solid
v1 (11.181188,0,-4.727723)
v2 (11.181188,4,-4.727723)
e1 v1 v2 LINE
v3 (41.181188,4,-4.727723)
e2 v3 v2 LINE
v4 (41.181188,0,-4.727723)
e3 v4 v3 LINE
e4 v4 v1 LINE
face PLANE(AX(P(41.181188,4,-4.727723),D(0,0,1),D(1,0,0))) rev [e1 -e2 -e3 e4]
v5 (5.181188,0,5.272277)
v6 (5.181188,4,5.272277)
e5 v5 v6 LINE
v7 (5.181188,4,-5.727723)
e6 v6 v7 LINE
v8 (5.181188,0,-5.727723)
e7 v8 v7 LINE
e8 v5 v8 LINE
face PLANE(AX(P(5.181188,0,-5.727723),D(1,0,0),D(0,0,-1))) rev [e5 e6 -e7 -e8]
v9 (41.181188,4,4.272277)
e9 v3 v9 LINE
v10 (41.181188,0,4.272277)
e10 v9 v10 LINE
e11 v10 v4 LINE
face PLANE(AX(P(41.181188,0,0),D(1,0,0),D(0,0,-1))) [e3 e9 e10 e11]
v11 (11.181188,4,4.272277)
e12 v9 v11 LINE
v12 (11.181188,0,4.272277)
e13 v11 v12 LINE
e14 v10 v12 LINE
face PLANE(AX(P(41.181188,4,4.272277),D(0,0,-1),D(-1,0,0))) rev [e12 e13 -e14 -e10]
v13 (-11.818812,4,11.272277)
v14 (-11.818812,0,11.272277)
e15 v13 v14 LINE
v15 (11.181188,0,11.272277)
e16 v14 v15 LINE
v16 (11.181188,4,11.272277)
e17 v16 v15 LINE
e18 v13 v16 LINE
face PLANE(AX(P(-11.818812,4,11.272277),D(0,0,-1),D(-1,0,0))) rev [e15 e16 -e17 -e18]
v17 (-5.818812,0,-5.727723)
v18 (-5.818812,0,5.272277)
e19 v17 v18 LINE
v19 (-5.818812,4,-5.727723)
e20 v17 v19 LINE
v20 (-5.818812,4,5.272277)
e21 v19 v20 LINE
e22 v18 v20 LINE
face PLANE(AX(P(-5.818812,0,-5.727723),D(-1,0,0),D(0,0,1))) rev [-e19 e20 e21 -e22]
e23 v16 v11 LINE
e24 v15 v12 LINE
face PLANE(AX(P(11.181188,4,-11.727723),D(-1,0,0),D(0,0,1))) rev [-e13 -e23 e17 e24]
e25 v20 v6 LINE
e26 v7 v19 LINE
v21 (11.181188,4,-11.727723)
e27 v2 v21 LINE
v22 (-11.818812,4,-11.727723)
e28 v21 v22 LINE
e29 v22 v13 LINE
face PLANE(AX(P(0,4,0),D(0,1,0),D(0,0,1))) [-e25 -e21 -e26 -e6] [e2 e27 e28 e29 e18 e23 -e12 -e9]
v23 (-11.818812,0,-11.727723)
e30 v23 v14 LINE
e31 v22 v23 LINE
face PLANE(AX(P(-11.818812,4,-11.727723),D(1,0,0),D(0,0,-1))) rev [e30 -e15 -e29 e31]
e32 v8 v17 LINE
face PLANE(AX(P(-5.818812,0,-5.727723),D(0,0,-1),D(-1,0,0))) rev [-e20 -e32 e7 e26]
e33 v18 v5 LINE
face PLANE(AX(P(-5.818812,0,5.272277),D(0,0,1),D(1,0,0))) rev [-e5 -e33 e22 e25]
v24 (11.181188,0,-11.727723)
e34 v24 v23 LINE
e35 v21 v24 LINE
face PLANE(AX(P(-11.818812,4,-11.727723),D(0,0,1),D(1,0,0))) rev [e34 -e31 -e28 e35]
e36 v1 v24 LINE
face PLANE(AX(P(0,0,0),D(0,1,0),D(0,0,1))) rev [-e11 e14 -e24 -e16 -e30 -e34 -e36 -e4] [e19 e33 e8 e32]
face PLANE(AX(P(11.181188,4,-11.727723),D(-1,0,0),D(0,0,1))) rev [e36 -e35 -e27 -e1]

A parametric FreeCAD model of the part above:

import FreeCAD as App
import Part
import Sketcher

doc = App.newDocument("Part")
body = doc.addObject("PartDesign::Body", "Body")

# Sketch on XZ plane
sketch1 = body.newObject("Sketcher::SketchObject", "Sketch")
sketch1.AttachmentSupport = (doc.getObject("XZ_Plane"), [""])
sketch1.MapMode = "FlatFace"
sketch1.addGeometry(Part.LineSegment(App.Vector(-12, -12, 0), App.Vector(-12, 11, 0)), False)
sketch1.addGeometry(Part.LineSegment(App.Vector(-12, 11, 0), App.Vector(11, 11, 0)), False)
sketch1.addGeometry(Part.LineSegment(App.Vector(11, 11, 0), App.Vector(11, -12, 0)), False)
sketch1.addGeometry(Part.LineSegment(App.Vector(11, -12, 0), App.Vector(-12, -12, 0)), False)
sketch1.addConstraint(Sketcher.Constraint("Coincident", 0, 2, 1, 1))
sketch1.addConstraint(Sketcher.Constraint("Coincident", 1, 2, 2, 1))
sketch1.addConstraint(Sketcher.Constraint("Coincident", 2, 2, 3, 1))
sketch1.addConstraint(Sketcher.Constraint("Coincident", 3, 2, 0, 1))
sketch1.addConstraint(Sketcher.Constraint("Vertical", 0))
sketch1.addConstraint(Sketcher.Constraint("Horizontal", 1))
sketch1.addConstraint(Sketcher.Constraint("Vertical", 2))
sketch1.addConstraint(Sketcher.Constraint("Horizontal", 3))
sketch1.addConstraint(Sketcher.Constraint("Equal", 3, 0))
sketch1.addConstraint(Sketcher.Constraint("DistanceX", 1, 1, 1, 2, 23.0))
sketch1.addConstraint(Sketcher.Constraint("DistanceX", 0, 2, -1, 1, 11.818812))
sketch1.addConstraint(Sketcher.Constraint("DistanceY", -1, 1, 0, 2, 11.272277))
pad1 = body.newObject("PartDesign::Pad", "Pad")
pad1.Profile = sketch1
pad1.Length = 4
pad1.Reversed = True

# Sketch on XZ plane
sketch2 = body.newObject("Sketcher::SketchObject", "Sketch001")
sketch2.AttachmentSupport = (doc.getObject("XZ_Plane"), [""])
sketch2.MapMode = "FlatFace"
sketch2.AttachmentOffset = App.Placement(App.Vector(0, 0, -4), App.Rotation())
sketch2.addGeometry(Part.LineSegment(App.Vector(-6, -6, 0), App.Vector(-6, 5, 0)), False)
sketch2.addGeometry(Part.LineSegment(App.Vector(-6, 5, 0), App.Vector(5, 5, 0)), False)
sketch2.addGeometry(Part.LineSegment(App.Vector(5, 5, 0), App.Vector(5, -6, 0)), False)
sketch2.addGeometry(Part.LineSegment(App.Vector(5, -6, 0), App.Vector(-6, -6, 0)), False)
sketch2.addConstraint(Sketcher.Constraint("Coincident", 0, 2, 1, 1))
sketch2.addConstraint(Sketcher.Constraint("Coincident", 1, 2, 2, 1))
sketch2.addConstraint(Sketcher.Constraint("Coincident", 2, 2, 3, 1))
sketch2.addConstraint(Sketcher.Constraint("Coincident", 3, 2, 0, 1))
sketch2.addConstraint(Sketcher.Constraint("Vertical", 0))
sketch2.addConstraint(Sketcher.Constraint("Horizontal", 1))
sketch2.addConstraint(Sketcher.Constraint("Vertical", 2))
sketch2.addConstraint(Sketcher.Constraint("Horizontal", 3))
sketch2.addConstraint(Sketcher.Constraint("Equal", 3, 0))
sketch2.addConstraint(Sketcher.Constraint("DistanceX", 1, 1, 1, 2, 11.0))
sketch2.addConstraint(Sketcher.Constraint("DistanceX", 0, 2, -1, 1, 5.818812))
sketch2.addConstraint(Sketcher.Constraint("DistanceY", -1, 1, 0, 2, 5.272277))
pocket1 = body.newObject("PartDesign::Pocket", "Pocket")
pocket1.Profile = sketch2
pocket1.Length = 4
pocket1.Reversed = True

# Sketch on YZ plane
sketch3 = body.newObject("Sketcher::SketchObject", "Sketch002")
sketch3.AttachmentSupport = (doc.getObject("YZ_Plane"), [""])
sketch3.MapMode = "FlatFace"
sketch3.AttachmentOffset = App.Placement(App.Vector(0, 0, 11.181188), App.Rotation())
sketch3.addGeometry(Part.LineSegment(App.Vector(4, 4.3, 0), App.Vector(0, 4.3, 0)), False)
sketch3.addGeometry(Part.LineSegment(App.Vector(0, 4.3, 0), App.Vector(0, -4.7, 0)), False)
sketch3.addGeometry(Part.LineSegment(App.Vector(0, -4.7, 0), App.Vector(4, -4.7, 0)), False)
sketch3.addGeometry(Part.LineSegment(App.Vector(4, -4.7, 0), App.Vector(4, 4.3, 0)), False)
sketch3.addConstraint(Sketcher.Constraint("Coincident", 0, 2, 1, 1))
sketch3.addConstraint(Sketcher.Constraint("Coincident", 1, 2, 2, 1))
sketch3.addConstraint(Sketcher.Constraint("Coincident", 2, 2, 3, 1))
sketch3.addConstraint(Sketcher.Constraint("Coincident", 3, 2, 0, 1))
sketch3.addConstraint(Sketcher.Constraint("Horizontal", 0))
sketch3.addConstraint(Sketcher.Constraint("Vertical", 1))
sketch3.addConstraint(Sketcher.Constraint("Horizontal", 2))
sketch3.addConstraint(Sketcher.Constraint("Vertical", 3))
sketch3.addConstraint(Sketcher.Constraint("PointOnObject", 0, 2, -2))
sketch3.addConstraint(Sketcher.Constraint("DistanceX", 0, 2, 0, 1, 4.0))
sketch3.addConstraint(Sketcher.Constraint("DistanceY", 1, 2, 1, 1, 9.0))
sketch3.addConstraint(Sketcher.Constraint("DistanceY", -1, 1, 0, 2, 4.272277))
pad2 = body.newObject("PartDesign::Pad", "Pad001")
pad2.Profile = sketch3
pad2.Length = 30

doc.recompute()
